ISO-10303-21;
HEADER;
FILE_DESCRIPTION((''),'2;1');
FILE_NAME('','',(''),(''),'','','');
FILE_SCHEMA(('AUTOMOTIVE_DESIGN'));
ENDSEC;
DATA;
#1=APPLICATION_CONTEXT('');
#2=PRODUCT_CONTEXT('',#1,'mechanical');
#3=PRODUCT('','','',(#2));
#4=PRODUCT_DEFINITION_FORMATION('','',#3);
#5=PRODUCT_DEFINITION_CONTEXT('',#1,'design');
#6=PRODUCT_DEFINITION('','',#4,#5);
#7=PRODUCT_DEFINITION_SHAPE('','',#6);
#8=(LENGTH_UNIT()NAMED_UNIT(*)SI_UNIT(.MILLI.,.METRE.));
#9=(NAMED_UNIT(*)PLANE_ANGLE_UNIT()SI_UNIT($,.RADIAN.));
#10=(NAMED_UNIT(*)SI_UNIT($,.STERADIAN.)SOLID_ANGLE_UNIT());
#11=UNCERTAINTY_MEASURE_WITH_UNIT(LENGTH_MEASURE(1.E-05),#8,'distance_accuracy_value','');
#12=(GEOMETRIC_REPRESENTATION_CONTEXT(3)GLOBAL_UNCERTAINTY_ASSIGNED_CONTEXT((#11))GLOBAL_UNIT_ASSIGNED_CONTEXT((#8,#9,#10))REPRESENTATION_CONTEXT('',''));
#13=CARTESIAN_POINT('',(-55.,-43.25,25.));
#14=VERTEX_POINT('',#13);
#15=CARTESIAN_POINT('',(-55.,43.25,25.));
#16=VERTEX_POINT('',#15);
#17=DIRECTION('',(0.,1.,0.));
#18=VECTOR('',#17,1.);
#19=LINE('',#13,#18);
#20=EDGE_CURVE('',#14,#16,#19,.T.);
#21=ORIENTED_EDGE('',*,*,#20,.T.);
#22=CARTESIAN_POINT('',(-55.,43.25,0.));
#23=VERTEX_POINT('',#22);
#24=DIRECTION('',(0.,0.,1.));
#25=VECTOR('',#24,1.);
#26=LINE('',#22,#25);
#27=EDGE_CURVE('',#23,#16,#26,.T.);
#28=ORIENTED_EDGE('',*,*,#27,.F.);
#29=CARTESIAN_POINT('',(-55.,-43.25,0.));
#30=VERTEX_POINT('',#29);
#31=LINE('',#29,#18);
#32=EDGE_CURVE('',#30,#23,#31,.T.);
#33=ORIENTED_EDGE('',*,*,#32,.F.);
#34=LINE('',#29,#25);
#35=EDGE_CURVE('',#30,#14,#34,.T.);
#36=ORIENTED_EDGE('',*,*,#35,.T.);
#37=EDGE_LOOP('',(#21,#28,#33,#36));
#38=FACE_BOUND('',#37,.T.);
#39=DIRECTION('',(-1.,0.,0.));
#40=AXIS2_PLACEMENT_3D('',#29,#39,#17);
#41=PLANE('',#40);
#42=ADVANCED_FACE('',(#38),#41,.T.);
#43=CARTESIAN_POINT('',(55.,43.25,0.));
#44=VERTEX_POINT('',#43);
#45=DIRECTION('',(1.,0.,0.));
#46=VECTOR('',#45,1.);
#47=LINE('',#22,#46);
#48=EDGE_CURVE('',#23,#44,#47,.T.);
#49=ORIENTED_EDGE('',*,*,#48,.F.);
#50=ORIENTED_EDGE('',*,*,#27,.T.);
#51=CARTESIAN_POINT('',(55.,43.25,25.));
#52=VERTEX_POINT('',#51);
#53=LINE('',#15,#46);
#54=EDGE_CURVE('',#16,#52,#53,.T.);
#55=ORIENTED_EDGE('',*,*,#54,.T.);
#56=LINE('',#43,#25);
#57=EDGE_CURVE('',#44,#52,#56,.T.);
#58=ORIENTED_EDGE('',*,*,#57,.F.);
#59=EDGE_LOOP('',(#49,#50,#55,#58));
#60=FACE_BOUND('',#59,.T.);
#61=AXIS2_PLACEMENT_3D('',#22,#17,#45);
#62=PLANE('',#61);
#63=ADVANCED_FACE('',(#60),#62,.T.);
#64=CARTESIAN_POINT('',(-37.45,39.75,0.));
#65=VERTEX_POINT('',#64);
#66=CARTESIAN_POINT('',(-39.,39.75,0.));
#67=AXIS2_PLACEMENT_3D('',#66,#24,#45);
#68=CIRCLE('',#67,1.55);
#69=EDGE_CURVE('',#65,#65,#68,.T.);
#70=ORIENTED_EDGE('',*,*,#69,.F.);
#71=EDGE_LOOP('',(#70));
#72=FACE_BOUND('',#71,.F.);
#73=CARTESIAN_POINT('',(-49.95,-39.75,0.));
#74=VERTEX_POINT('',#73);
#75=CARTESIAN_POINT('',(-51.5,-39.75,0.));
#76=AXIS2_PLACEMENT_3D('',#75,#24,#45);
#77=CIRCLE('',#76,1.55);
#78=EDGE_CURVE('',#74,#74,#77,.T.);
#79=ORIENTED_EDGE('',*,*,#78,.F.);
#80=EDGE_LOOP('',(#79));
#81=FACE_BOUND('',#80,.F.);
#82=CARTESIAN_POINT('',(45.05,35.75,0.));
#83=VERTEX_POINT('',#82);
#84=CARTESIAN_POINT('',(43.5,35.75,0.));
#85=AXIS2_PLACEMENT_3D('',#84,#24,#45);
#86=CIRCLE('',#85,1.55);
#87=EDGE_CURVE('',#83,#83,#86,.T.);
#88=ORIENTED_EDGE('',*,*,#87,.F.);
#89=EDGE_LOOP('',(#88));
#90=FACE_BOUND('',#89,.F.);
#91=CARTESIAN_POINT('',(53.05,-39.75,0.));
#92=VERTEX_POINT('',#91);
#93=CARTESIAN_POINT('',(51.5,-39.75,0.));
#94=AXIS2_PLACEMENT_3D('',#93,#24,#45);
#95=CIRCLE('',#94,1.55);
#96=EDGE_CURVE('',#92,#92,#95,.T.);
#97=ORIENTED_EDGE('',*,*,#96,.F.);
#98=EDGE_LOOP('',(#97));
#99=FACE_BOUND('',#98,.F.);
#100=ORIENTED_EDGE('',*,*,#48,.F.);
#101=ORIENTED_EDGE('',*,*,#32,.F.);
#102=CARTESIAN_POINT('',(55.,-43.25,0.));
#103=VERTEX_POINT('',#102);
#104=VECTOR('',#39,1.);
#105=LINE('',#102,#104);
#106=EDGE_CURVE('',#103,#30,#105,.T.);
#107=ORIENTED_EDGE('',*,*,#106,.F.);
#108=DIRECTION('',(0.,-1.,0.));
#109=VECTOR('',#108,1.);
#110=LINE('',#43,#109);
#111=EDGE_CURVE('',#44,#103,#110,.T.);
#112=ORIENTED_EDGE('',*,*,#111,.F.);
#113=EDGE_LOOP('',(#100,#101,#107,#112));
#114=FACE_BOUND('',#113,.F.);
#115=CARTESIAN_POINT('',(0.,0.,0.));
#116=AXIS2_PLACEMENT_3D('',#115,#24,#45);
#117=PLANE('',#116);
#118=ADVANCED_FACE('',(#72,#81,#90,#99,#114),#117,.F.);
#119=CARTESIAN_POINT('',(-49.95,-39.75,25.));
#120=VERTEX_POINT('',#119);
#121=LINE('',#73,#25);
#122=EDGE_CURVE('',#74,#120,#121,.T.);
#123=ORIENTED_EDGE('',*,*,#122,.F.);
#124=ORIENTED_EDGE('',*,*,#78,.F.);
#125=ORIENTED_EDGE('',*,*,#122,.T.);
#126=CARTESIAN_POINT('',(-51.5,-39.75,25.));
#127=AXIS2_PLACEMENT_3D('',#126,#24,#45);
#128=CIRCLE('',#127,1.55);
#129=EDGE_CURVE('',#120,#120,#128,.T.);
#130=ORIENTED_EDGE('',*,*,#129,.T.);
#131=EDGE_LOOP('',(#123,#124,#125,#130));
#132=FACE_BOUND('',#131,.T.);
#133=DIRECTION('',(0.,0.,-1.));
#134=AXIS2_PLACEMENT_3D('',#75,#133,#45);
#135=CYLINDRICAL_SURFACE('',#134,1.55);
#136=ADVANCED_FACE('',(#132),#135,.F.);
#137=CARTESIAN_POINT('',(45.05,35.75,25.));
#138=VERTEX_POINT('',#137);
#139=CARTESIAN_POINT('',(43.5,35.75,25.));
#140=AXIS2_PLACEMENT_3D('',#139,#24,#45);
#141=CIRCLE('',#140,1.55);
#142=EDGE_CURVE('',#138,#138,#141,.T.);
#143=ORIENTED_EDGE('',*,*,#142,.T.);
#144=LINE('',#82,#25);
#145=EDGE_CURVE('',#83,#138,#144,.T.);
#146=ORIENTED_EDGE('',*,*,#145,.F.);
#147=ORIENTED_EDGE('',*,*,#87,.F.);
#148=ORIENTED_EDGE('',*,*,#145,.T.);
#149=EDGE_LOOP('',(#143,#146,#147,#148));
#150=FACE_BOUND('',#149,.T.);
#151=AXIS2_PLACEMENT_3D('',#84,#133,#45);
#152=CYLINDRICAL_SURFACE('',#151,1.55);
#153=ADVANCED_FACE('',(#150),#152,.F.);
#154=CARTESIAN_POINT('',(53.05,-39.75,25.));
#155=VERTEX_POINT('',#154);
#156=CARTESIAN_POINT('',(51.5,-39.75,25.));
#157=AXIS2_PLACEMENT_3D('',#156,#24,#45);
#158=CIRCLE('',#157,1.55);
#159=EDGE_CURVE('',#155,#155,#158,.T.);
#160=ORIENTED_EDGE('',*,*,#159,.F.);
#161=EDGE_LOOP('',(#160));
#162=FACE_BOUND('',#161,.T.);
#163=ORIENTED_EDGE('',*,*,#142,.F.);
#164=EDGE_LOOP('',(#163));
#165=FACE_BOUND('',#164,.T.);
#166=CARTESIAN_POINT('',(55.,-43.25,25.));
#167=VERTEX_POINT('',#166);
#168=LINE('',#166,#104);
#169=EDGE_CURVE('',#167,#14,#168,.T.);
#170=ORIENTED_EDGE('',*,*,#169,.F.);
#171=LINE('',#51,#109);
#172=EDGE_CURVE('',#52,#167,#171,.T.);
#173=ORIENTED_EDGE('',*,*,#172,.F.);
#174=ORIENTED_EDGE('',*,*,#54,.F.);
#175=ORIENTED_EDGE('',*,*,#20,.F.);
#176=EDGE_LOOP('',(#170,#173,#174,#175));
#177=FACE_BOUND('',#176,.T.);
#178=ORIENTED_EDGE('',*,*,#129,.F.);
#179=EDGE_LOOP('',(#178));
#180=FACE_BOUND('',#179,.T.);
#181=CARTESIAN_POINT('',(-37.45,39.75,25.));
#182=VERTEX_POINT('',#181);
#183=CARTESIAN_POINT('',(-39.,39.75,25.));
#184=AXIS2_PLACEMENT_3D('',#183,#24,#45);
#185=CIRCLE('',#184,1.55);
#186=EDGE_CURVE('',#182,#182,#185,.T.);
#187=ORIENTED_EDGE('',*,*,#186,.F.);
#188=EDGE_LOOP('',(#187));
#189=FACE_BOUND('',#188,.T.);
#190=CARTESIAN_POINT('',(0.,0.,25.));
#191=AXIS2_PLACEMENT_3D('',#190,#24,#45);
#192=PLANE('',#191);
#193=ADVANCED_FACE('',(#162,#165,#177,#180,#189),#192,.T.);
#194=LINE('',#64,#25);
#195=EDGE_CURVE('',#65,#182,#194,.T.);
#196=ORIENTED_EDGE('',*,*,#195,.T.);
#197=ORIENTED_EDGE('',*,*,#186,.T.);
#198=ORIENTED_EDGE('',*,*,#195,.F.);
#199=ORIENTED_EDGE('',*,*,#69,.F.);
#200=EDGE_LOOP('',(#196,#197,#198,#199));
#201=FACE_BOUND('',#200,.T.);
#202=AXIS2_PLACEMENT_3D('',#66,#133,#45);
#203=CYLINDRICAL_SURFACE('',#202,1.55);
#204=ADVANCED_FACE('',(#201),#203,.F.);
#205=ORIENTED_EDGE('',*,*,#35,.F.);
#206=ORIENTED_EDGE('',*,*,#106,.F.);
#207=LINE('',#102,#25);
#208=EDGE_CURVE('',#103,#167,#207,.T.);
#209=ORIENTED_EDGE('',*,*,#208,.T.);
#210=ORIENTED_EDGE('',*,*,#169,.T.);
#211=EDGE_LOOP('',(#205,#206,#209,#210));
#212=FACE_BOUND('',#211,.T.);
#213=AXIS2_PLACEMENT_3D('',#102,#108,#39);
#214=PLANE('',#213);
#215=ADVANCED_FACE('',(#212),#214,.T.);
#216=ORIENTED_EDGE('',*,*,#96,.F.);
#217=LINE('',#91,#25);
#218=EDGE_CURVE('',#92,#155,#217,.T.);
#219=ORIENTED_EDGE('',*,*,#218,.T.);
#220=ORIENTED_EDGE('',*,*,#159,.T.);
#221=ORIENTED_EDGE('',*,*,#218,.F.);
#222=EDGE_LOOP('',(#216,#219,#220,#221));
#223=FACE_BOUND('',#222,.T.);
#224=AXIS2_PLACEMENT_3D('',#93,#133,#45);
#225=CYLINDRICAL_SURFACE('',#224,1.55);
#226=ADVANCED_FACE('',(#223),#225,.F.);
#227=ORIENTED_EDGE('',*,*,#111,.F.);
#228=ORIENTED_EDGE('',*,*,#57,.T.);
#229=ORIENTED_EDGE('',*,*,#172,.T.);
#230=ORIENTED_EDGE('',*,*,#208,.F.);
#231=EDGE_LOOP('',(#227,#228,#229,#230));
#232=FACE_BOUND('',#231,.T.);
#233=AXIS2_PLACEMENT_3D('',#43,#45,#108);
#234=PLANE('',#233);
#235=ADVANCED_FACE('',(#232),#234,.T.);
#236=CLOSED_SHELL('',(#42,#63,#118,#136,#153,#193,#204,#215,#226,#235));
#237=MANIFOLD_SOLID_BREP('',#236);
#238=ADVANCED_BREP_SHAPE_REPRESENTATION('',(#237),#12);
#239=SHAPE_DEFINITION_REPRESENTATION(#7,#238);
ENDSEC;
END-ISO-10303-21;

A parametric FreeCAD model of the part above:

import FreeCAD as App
import Part
import Sketcher
from FreeCAD import Vector

doc = App.newDocument("Part")
params = doc.addObject("Spreadsheet::Sheet", "Params")
for row, (alias, value) in enumerate([
    ("sketch1_diameter", "3.1 mm"),
    ("sketch1_width", "110 mm"),
    ("sketch1_height", "86.5 mm"),
    ("pad1_length", "25 mm"),
], start=1):
    params.set(f"A{row}", alias)
    params.set(f"B{row}", "=" + value)
    params.setAlias(f"B{row}", alias)

body = doc.addObject("PartDesign::Body", "Body")

sketch1 = body.newObject("Sketcher::SketchObject", "Sketch")
sketch1.AttachmentSupport = (doc.getObject("XY_Plane"), [""])
sketch1.MapMode = "FlatFace"
sketch1.addGeometry([
    Part.LineSegment(Vector(55, 43.2, 0), Vector(-55, 43.2, 0)),
    Part.LineSegment(Vector(-55, 43.2, 0), Vector(-55, -43.2, 0)),
    Part.LineSegment(Vector(-55, -43.2, 0), Vector(55, -43.2, 0)),
    Part.LineSegment(Vector(55, -43.2, 0), Vector(55, 43.2, 0)),
    Part.Circle(Vector(-51.5, -39.8, 0), Vector(0, 0, 1), 1.6),
    Part.Circle(Vector(51.5, -39.8, 0), Vector(0, 0, 1), 1.6),
    Part.Circle(Vector(-39, 39.8, 0), Vector(0, 0, 1), 1.6),
    Part.Circle(Vector(43.5, 35.8, 0), Vector(0, 0, 1), 1.6),
], False)
sketch1.addConstraint([
    Sketcher.Constraint("Coincident", 0, 2, 1, 1),
    Sketcher.Constraint("Coincident", 1, 2, 2, 1),
    Sketcher.Constraint("Coincident", 2, 2, 3, 1),
    Sketcher.Constraint("Coincident", 3, 2, 0, 1),
    Sketcher.Constraint("Horizontal", 0),
    Sketcher.Constraint("Vertical", 1),
    Sketcher.Constraint("Horizontal", 2),
    Sketcher.Constraint("Vertical", 3),
    Sketcher.Constraint("Equal", 4, 5),
    Sketcher.Constraint("Equal", 5, 6),
    Sketcher.Constraint("Equal", 6, 7),
    Sketcher.Constraint("Symmetric", 0, 2, 2, 2, -1, 1),
    Sketcher.Constraint("Symmetric", 4, 3, 5, 3, -2),
    Sketcher.Constraint("Diameter", 4, 3.1),
    Sketcher.Constraint("DistanceX", 0, 2, 0, 1, 110.0),
    Sketcher.Constraint("DistanceY", 1, 2, 1, 1, 86.5),
    Sketcher.Constraint("DistanceX", 0, 2, 6, 3, 16.0),
    Sketcher.Constraint("DistanceY", 4, 3, 0, 2, 83.0),
    Sketcher.Constraint("DistanceY", 1, 2, 6, 3, 83.0),
    Sketcher.Constraint("DistanceY", 1, 2, 7, 3, 79.0),
    Sketcher.Constraint("DistanceX", 0, 2, 4, 3, 3.5),
    Sketcher.Constraint("DistanceX", 0, 2, 7, 3, 98.5),
])
sketch1.setExpression("Constraints[13]", "Params.sketch1_diameter")
sketch1.setExpression("Constraints[14]", "Params.sketch1_width")
sketch1.setExpression("Constraints[15]", "Params.sketch1_height")
pad1 = body.newObject("PartDesign::Pad", "Pad")
pad1.Profile = sketch1
pad1.setExpression("Length", "Params.pad1_length")

doc.recompute()
